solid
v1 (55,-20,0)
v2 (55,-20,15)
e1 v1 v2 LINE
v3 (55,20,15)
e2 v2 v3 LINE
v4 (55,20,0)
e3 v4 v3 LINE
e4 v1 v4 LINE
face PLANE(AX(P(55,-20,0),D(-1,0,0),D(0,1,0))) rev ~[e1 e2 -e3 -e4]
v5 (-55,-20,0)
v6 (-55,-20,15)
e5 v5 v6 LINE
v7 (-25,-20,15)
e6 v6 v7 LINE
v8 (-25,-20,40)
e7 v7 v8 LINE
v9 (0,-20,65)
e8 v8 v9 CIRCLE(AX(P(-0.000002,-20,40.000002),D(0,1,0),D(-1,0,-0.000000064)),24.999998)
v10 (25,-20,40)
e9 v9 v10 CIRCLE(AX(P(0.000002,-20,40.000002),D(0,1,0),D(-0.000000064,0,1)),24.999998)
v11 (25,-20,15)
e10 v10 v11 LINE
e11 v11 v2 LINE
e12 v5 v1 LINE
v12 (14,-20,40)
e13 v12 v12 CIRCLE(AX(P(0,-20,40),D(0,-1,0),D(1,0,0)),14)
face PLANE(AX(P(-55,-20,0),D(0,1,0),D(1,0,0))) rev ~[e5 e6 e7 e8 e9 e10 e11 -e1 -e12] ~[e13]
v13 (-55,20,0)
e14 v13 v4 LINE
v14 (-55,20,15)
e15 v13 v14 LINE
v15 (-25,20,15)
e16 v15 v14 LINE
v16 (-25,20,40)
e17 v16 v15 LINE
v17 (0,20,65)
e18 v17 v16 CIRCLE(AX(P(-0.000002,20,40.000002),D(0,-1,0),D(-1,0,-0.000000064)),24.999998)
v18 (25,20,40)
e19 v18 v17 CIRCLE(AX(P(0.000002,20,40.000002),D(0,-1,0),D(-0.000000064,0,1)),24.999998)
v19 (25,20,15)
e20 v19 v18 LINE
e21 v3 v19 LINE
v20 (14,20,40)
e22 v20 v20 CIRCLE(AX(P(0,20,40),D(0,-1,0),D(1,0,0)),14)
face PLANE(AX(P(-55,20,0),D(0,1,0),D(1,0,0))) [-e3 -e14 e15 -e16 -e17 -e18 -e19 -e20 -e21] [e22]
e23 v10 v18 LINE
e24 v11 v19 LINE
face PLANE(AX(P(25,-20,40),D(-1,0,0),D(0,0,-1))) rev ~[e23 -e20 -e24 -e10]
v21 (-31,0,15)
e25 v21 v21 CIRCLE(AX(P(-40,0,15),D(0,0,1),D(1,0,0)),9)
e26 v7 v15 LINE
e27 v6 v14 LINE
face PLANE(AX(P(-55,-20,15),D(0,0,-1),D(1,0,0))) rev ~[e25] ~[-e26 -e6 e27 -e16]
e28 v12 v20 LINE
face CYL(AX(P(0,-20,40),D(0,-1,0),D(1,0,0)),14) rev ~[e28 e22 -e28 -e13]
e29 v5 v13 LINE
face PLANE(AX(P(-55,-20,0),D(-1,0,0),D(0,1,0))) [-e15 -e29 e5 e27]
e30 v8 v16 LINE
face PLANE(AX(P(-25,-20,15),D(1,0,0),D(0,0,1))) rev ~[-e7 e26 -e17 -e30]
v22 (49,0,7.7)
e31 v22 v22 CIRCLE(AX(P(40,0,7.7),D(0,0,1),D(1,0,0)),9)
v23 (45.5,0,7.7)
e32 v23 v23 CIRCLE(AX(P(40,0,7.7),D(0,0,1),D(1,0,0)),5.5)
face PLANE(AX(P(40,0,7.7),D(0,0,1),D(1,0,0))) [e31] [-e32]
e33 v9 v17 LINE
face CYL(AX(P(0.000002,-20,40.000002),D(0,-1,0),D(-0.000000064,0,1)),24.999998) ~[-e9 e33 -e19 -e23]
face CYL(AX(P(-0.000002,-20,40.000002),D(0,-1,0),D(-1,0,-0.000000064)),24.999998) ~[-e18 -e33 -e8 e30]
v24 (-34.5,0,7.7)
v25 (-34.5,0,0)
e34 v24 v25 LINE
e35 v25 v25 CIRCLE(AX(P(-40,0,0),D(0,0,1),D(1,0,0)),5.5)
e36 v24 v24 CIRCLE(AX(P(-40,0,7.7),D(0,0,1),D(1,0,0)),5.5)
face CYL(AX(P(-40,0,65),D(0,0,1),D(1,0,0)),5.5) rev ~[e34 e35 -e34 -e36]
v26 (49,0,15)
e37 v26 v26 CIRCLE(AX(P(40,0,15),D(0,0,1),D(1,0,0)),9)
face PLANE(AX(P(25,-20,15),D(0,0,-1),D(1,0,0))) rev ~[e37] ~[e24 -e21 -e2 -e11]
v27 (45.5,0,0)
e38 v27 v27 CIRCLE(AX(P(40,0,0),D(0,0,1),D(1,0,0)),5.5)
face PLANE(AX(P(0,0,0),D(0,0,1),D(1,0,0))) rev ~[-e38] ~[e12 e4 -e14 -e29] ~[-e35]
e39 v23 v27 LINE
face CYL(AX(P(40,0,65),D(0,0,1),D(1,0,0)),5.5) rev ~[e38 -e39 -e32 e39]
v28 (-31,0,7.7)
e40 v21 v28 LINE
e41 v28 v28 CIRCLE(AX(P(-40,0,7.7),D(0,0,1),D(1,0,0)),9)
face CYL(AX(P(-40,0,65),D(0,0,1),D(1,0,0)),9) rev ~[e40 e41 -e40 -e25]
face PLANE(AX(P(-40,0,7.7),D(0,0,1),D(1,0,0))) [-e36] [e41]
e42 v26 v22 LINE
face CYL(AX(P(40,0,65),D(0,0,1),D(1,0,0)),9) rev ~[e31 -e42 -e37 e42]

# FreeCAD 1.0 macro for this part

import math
import FreeCAD as App
import Part
import Sketcher

V = App.Vector
Q = App.Units.Quantity


def add_polygon(sketch, points):
    """Adds a closed chain of lines whose ends are joined by coincident constraints."""
    first, n = sketch.GeometryCount, len(points)
    for a, b in zip(points, points[1:] + points[:1]):
        sketch.addGeometry(Part.LineSegment(App.Vector(*a, 0), App.Vector(*b, 0)), False)
    for i in range(n):
        sketch.addConstraint(Sketcher.Constraint("Coincident", first + i, 2, first + (i + 1) % n, 1))

doc = App.newDocument("Part")
body = doc.addObject("PartDesign::Body", "Body")

# Sketch on XY plane
sketch1 = doc.addObject("Sketcher::SketchObject", "Sketch")
body.addObject(sketch1)
sketch1.AttachmentSupport = (doc.XY_Plane, [""])
sketch1.MapMode = "FlatFace"
add_polygon(sketch1, [(-55, 20), (-55, -20), (55, -20), (55, 20)])  # lines 0-3
sketch1.addConstraint([
    Sketcher.Constraint("Vertical", 0),
    Sketcher.Constraint("Horizontal", 1),
    Sketcher.Constraint("Vertical", 2),
    Sketcher.Constraint("Horizontal", 3),
    Sketcher.Constraint("Symmetric", 0, 2, 2, 2, -1, 1),
    Sketcher.Constraint("DistanceX", 1, 1, 1, 2, Q("110 mm")),
    Sketcher.Constraint("DistanceY", 0, 2, 0, 1, Q("40 mm")),
])
pad1 = doc.addObject("PartDesign::Pad", "Pad")
body.addObject(pad1)
pad1.Profile = sketch1
pad1.Length = 65

# Sketch on XY plane
sketch2 = doc.addObject("Sketcher::SketchObject", "Sketch001")
body.addObject(sketch2)
sketch2.AttachmentSupport = (doc.XY_Plane, [""])
sketch2.MapMode = "FlatFace"
sketch2.AttachmentOffset = App.Placement(V(0, 0, 65), App.Rotation())
sketch2.addGeometry([
    Part.Circle(V(-40, 0, 0), V(0, 0, 1), 6),
    Part.Circle(V(40, 0, 0), V(0, 0, 1), 6),
], False)
sketch2.addConstraint([
    Sketcher.Constraint("Equal", 0, 1),
    Sketcher.Constraint("Symmetric", 0, 3, 1, 3, -1, 1),
    Sketcher.Constraint("PointOnObject", 0, 3, -1),
    Sketcher.Constraint("Diameter", 0, Q("11 mm")),
    Sketcher.Constraint("DistanceX", 0, 3, -1, 1, Q("40 mm")),
])
pocket1 = doc.addObject("PartDesign::Pocket", "Pocket")
body.addObject(pocket1)
pocket1.Profile = sketch2
pocket1.Length = 80

# Sketch on XY plane
sketch3 = doc.addObject("Sketcher::SketchObject", "Sketch002")
body.addObject(sketch3)
sketch3.AttachmentSupport = (doc.XY_Plane, [""])
sketch3.MapMode = "FlatFace"
sketch3.AttachmentOffset = App.Placement(V(0, 0, 65), App.Rotation())
sketch3.addGeometry([
    Part.Circle(V(-40, 0, 0), V(0, 0, 1), 9),
    Part.Circle(V(-40, 0, 0), V(0, 0, 1), 6),
    Part.Circle(V(40, 0, 0), V(0, 0, 1), 9),
    Part.Circle(V(40, 0, 0), V(0, 0, 1), 6),
], False)
sketch3.addConstraint([
    Sketcher.Constraint("Coincident", 1, 3, 0, 3),
    Sketcher.Constraint("Coincident", 3, 3, 2, 3),
    Sketcher.Constraint("Equal", 0, 2),
    Sketcher.Constraint("Equal", 1, 3),
    Sketcher.Constraint("Symmetric", 0, 3, 2, 3, -1, 1),
    Sketcher.Constraint("PointOnObject", 0, 3, -1),
    Sketcher.Constraint("Diameter", 0, Q("18 mm")),
    Sketcher.Constraint("Diameter", 1, Q("11 mm")),
    Sketcher.Constraint("DistanceX", 0, 3, -1, 1, Q("40 mm")),
])
pocket2 = doc.addObject("PartDesign::Pocket", "Pocket001")
body.addObject(pocket2)
pocket2.Profile = sketch3
pocket2.Length = 57.3

# Sketch on XZ plane
sketch4 = doc.addObject("Sketcher::SketchObject", "Sketch003")
body.addObject(sketch4)
sketch4.AttachmentSupport = (doc.XZ_Plane, [""])
sketch4.MapMode = "FlatFace"
sketch4.AttachmentOffset = App.Placement(V(0, 0, 20), App.Rotation())
sketch4.addGeometry([
    Part.Circle(V(0, 40, 0), V(0, 0, 1), 14),  # 0
    Part.LineSegment(V(-55, 65, 0), V(-55, 15, 0)),  # 1
    Part.LineSegment(V(-55, 15, 0), V(-25, 15, 0)),  # 2
    Part.LineSegment(V(-25, 15, 0), V(-25, 40, 0)),  # 3
    Part.ArcOfCircle(Part.Circle(V(0, 40, 0), V(0, 0, 1), 25), math.radians(90), math.radians(180)),  # 4
    Part.LineSegment(V(0, 65, 0), V(-55, 65, 0)),  # 5
    Part.LineSegment(V(55, 65, 0), V(0, 65, 0)),  # 6
    Part.ArcOfCircle(Part.Circle(V(0, 40, 0), V(0, 0, 1), 25), math.radians(0), math.radians(90)),  # 7
    Part.LineSegment(V(25, 40, 0), V(25, 15, 0)),  # 8
    Part.LineSegment(V(25, 15, 0), V(55, 15, 0)),  # 9
    Part.LineSegment(V(55, 15, 0), V(55, 65, 0)),  # 10
], False)
sketch4.addConstraint([
    Sketcher.Constraint("Coincident", 1, 2, 2, 1),
    Sketcher.Constraint("Coincident", 2, 2, 3, 1),
    Sketcher.Constraint("Tangent", 3, 2, 4, 2),
    Sketcher.Constraint("Tangent", 4, 1, 5, 1),
    Sketcher.Constraint("Coincident", 5, 2, 1, 1),
    Sketcher.Constraint("Tangent", 6, 2, 7, 2),
    Sketcher.Constraint("Tangent", 7, 1, 8, 1),
    Sketcher.Constraint("Coincident", 8, 2, 9, 1),
    Sketcher.Constraint("Coincident", 9, 2, 10, 1),
    Sketcher.Constraint("Coincident", 10, 2, 6, 1),
    Sketcher.Constraint("Vertical", 1),
    Sketcher.Constraint("Horizontal", 2),
    Sketcher.Constraint("Vertical", 3),
    Sketcher.Constraint("Horizontal", 5),
    Sketcher.Constraint("Horizontal", 6),
    Sketcher.Constraint("Vertical", 8),
    Sketcher.Constraint("Horizontal", 9),
    Sketcher.Constraint("Vertical", 10),
    Sketcher.Constraint("Coincident", 4, 3, 0, 3),
    Sketcher.Constraint("Coincident", 7, 3, 0, 3),
    Sketcher.Constraint("Equal", 4, 7),
    Sketcher.Constraint("Symmetric", 2, 2, 8, 2, -2),
    Sketcher.Constraint("Equal", 5, 6),
    Sketcher.Constraint("Diameter", 0, Q("28 mm")),
    Sketcher.Constraint("Radius", 4, Q("24.999998 mm")),
    Sketcher.Constraint("DistanceX", 2, 1, 2, 2, Q("30 mm")),
    Sketcher.Constraint("DistanceY", 1, 2, 1, 1, Q("50 mm")),
    Sketcher.Constraint("DistanceY", -1, 1, 0, 3, Q("40 mm")),
])
pocket3 = doc.addObject("PartDesign::Pocket", "Pocket002")
body.addObject(pocket3)
pocket3.Profile = sketch4
pocket3.Length = 80

doc.recompute()
